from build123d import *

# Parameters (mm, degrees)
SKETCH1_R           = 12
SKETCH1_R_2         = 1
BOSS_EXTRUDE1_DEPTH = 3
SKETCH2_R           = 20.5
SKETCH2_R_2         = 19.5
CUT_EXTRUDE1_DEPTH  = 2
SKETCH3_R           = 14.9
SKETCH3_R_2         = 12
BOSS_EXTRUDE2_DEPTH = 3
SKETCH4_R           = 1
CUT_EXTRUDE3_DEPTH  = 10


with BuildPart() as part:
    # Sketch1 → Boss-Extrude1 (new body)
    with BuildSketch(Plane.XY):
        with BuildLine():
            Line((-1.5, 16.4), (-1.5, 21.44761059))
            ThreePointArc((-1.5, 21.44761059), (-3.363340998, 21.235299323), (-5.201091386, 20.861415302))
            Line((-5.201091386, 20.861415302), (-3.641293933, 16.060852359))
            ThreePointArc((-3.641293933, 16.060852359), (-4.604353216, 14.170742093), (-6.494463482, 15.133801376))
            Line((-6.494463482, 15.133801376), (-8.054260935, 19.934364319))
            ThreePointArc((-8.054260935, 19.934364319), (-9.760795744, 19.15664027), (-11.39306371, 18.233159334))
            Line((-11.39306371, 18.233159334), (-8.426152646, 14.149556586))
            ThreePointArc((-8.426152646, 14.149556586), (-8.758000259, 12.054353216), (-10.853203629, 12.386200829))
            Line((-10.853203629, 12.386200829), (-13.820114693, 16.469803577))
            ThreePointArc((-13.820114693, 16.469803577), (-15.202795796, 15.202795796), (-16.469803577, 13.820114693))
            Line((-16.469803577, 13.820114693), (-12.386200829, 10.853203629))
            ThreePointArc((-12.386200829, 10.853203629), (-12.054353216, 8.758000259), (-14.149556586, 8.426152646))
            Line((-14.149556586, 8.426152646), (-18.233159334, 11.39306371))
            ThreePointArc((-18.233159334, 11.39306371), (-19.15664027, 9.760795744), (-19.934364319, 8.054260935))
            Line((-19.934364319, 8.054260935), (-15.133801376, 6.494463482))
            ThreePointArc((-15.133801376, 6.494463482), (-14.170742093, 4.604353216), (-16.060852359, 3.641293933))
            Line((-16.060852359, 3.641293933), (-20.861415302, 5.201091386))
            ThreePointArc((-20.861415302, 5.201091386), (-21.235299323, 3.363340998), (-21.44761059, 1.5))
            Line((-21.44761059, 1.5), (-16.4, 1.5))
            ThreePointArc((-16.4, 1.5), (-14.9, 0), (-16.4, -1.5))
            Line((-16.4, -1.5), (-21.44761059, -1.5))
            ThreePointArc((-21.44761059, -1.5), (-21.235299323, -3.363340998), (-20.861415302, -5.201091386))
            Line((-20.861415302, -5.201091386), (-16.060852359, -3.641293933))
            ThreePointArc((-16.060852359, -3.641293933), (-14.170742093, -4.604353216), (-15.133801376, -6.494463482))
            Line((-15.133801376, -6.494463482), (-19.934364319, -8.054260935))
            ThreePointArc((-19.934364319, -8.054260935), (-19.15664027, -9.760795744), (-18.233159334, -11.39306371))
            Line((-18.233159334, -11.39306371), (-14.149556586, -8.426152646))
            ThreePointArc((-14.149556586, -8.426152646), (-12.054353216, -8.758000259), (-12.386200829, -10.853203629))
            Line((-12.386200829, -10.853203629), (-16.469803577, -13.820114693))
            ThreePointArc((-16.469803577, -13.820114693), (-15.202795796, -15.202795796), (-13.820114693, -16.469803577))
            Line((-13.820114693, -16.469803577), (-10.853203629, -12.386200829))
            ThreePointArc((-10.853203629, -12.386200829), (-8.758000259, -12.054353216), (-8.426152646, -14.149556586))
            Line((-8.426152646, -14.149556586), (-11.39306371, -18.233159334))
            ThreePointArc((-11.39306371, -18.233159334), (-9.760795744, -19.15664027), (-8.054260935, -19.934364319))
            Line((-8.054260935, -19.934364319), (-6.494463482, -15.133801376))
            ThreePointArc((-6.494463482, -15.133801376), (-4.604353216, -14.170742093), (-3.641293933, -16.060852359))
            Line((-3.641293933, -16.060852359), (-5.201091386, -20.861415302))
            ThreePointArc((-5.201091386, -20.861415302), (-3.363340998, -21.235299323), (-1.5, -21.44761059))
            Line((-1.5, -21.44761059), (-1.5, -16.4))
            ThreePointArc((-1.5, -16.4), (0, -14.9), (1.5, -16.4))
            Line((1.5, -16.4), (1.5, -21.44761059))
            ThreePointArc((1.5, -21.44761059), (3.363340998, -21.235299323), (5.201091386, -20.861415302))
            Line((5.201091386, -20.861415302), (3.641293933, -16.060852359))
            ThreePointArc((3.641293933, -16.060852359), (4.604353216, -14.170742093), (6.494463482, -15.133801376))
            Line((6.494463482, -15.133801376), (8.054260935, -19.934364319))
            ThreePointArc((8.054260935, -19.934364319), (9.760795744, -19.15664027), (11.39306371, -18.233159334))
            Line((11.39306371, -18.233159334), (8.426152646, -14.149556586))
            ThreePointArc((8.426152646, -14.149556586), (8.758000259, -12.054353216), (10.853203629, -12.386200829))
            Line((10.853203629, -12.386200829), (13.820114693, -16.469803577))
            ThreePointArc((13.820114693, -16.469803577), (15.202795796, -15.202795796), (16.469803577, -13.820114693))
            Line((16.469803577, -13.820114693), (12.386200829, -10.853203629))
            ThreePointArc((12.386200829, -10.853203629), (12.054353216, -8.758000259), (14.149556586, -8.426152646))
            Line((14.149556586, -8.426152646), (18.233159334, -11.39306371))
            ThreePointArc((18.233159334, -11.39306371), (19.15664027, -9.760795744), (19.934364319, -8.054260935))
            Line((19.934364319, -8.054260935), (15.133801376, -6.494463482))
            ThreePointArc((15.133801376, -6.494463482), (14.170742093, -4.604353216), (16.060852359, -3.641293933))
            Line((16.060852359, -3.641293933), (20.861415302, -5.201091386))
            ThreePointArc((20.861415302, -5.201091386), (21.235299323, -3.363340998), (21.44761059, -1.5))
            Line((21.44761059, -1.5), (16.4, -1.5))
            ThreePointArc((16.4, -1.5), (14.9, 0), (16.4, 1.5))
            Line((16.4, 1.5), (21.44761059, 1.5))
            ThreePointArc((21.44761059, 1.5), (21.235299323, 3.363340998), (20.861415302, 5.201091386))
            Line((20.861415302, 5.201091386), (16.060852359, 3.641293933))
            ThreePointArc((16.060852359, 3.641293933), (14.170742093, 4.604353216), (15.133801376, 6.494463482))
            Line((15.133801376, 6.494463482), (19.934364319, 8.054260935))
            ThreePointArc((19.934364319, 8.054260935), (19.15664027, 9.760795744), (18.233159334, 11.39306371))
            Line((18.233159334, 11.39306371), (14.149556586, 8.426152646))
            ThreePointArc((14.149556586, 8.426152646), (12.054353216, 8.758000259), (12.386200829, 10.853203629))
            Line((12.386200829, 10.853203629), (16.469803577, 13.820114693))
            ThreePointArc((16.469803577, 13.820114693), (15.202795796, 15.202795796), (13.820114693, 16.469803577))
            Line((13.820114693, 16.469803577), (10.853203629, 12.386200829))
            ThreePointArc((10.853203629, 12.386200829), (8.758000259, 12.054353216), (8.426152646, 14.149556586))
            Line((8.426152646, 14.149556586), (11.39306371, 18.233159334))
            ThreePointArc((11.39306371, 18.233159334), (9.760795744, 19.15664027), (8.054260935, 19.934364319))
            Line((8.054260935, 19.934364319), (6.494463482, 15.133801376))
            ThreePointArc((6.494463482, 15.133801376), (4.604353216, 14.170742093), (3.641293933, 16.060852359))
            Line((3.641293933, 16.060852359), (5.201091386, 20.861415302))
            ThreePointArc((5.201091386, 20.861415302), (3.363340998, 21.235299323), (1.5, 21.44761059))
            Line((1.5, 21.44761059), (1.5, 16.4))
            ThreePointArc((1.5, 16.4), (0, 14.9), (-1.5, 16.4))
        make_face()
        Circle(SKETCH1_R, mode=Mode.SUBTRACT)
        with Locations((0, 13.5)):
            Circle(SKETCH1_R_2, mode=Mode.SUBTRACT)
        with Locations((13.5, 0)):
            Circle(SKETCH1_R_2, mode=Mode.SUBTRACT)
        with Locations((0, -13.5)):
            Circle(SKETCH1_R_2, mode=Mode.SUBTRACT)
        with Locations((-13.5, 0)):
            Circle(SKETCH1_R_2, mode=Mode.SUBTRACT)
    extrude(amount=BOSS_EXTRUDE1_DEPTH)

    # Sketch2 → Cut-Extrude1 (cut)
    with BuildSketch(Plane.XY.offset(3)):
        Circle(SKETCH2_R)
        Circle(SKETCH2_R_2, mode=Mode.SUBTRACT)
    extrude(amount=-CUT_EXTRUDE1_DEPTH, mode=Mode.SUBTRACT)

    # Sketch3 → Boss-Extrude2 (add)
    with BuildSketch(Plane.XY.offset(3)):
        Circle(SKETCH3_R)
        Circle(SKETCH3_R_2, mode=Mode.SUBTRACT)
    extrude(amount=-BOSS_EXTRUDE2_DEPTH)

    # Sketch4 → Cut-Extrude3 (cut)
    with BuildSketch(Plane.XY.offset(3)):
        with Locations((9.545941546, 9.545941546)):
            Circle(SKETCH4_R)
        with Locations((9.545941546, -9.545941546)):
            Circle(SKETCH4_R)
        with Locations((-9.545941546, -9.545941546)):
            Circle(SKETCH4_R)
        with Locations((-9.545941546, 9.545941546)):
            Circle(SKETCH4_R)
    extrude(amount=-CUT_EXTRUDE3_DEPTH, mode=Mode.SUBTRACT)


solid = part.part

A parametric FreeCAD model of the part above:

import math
import FreeCAD as App
import Part
import Sketcher

V = App.Vector
Q = App.Units.Quantity

doc = App.newDocument("Part")
params = doc.addObject("Spreadsheet::Sheet", "Params")
for row, (alias, value) in enumerate([
    ("sketch1_diameter", "2 mm"),
    ("sketch1_diameter2", "24 mm"),
    ("sketch1_radius", "21.5 mm"),
    ("sketch1_radius2", "1.5 mm"),
    ("pad1_length", "3 mm"),
    ("sketch2_diameter", "41 mm"),
    ("sketch2_diameter2", "39 mm"),
    ("pocket1_length", "2 mm"),
    ("sketch3_diameter", "24 mm"),
    ("sketch3_diameter2", "29.8 mm"),
    ("pad2_length", "3 mm"),
    ("sketch4_diameter", "2 mm"),
    ("pocket2_length", "10 mm"),
], start=1):
    params.set(f"A{row}", alias)
    params.set(f"B{row}", "=" + value)
    params.setAlias(f"B{row}", alias)

body = doc.addObject("PartDesign::Body", "Body")

sketch1 = body.newObject("Sketcher::SketchObject", "Sketch")
sketch1.AttachmentSupport = (doc.getObject("XY_Plane"), [""])
sketch1.MapMode = "FlatFace"
sketch1.addGeometry(Part.LineSegment(V(-1.5, 16.4, 0), V(-1.5, 21.4, 0)), False)
sketch1.addGeometry(Part.ArcOfCircle(Part.Circle(V(0, 0, 0), V(0, 0, 1), 21.5), math.radians(94), math.radians(104)), False)
sketch1.addGeometry(Part.LineSegment(V(-5.2, 20.9, 0), V(-3.6, 16.1, 0)), False)
sketch1.addGeometry(Part.ArcOfCircle(Part.Circle(V(-5.1, 15.6, 0), V(0, 0, 1), 1.5), math.radians(-162), math.radians(18)), False)
sketch1.addGeometry(Part.LineSegment(V(-6.5, 15.1, 0), V(-8.1, 19.9, 0)), False)
sketch1.addGeometry(Part.ArcOfCircle(Part.Circle(V(0, 0, 0), V(0, 0, 1), 21.5), math.radians(112), math.radians(122)), False)
sketch1.addGeometry(Part.LineSegment(V(-11.4, 18.2, 0), V(-8.4, 14.1, 0)), False)
sketch1.addGeometry(Part.ArcOfCircle(Part.Circle(V(-9.6, 13.3, 0), V(0, 0, 1), 1.5), math.radians(-144), math.radians(36)), False)
sketch1.addGeometry(Part.LineSegment(V(-10.9, 12.4, 0), V(-13.8, 16.5, 0)), False)
sketch1.addGeometry(Part.ArcOfCircle(Part.Circle(V(0, 0, 0), V(0, 0, 1), 21.5), math.radians(130), math.radians(140)), False)
sketch1.addGeometry(Part.LineSegment(V(-16.5, 13.8, 0), V(-12.4, 10.9, 0)), False)
sketch1.addGeometry(Part.ArcOfCircle(Part.Circle(V(-13.3, 9.6, 0), V(0, 0, 1), 1.5), math.radians(-126), math.radians(54)), False)
sketch1.addGeometry(Part.LineSegment(V(-14.1, 8.4, 0), V(-18.2, 11.4, 0)), False)
sketch1.addGeometry(Part.ArcOfCircle(Part.Circle(V(0, 0, 0), V(0, 0, 1), 21.5), math.radians(148), math.radians(158)), False)
sketch1.addGeometry(Part.LineSegment(V(-19.9, 8.1, 0), V(-15.1, 6.5, 0)), False)
sketch1.addGeometry(Part.ArcOfCircle(Part.Circle(V(-15.6, 5.1, 0), V(0, 0, 1), 1.5), math.radians(-108), math.radians(72)), False)
sketch1.addGeometry(Part.LineSegment(V(-16.1, 3.6, 0), V(-20.9, 5.2, 0)), False)
sketch1.addGeometry(Part.ArcOfCircle(Part.Circle(V(0, 0, 0), V(0, 0, 1), 21.5), math.radians(166), math.radians(176)), False)
sketch1.addGeometry(Part.LineSegment(V(-21.4, 1.5, 0), V(-16.4, 1.5, 0)), False)
sketch1.addGeometry(Part.ArcOfCircle(Part.Circle(V(-16.4, 0, 0), V(0, 0, 1), 1.5), math.radians(-90), math.radians(90)), False)
sketch1.addGeometry(Part.LineSegment(V(-16.4, -1.5, 0), V(-21.4, -1.5, 0)), False)
sketch1.addGeometry(Part.ArcOfCircle(Part.Circle(V(0, 0, 0), V(0, 0, 1), 21.5), math.radians(-176), math.radians(-166)), False)
sketch1.addGeometry(Part.LineSegment(V(-20.9, -5.2, 0), V(-16.1, -3.6, 0)), False)
sketch1.addGeometry(Part.ArcOfCircle(Part.Circle(V(-15.6, -5.1, 0), V(0, 0, 1), 1.5), math.radians(-72), math.radians(108)), False)
sketch1.addGeometry(Part.LineSegment(V(-15.1, -6.5, 0), V(-19.9, -8.1, 0)), False)
sketch1.addGeometry(Part.ArcOfCircle(Part.Circle(V(0, 0, 0), V(0, 0, 1), 21.5), math.radians(-158), math.radians(-148)), False)
sketch1.addGeometry(Part.LineSegment(V(-18.2, -11.4, 0), V(-14.1, -8.4, 0)), False)
sketch1.addGeometry(Part.ArcOfCircle(Part.Circle(V(-13.3, -9.6, 0), V(0, 0, 1), 1.5), math.radians(-54), math.radians(126)), False)
sketch1.addGeometry(Part.LineSegment(V(-12.4, -10.9, 0), V(-16.5, -13.8, 0)), False)
sketch1.addGeometry(Part.ArcOfCircle(Part.Circle(V(0, 0, 0), V(0, 0, 1), 21.5), math.radians(-140), math.radians(-130)), False)
sketch1.addGeometry(Part.LineSegment(V(-13.8, -16.5, 0), V(-10.9, -12.4, 0)), False)
sketch1.addGeometry(Part.ArcOfCircle(Part.Circle(V(-9.6, -13.3, 0), V(0, 0, 1), 1.5), math.radians(-36), math.radians(144)), False)
sketch1.addGeometry(Part.LineSegment(V(-8.4, -14.1, 0), V(-11.4, -18.2, 0)), False)
sketch1.addGeometry(Part.ArcOfCircle(Part.Circle(V(0, 0, 0), V(0, 0, 1), 21.5), math.radians(-122), math.radians(-112)), False)
sketch1.addGeometry(Part.LineSegment(V(-8.1, -19.9, 0), V(-6.5, -15.1, 0)), False)
sketch1.addGeometry(Part.ArcOfCircle(Part.Circle(V(-5.1, -15.6, 0), V(0, 0, 1), 1.5), math.radians(-18), math.radians(162)), False)
sketch1.addGeometry(Part.LineSegment(V(-3.6, -16.1, 0), V(-5.2, -20.9, 0)), False)
sketch1.addGeometry(Part.ArcOfCircle(Part.Circle(V(0, 0, 0), V(0, 0, 1), 21.5), math.radians(-104), math.radians(-94)), False)
sketch1.addGeometry(Part.LineSegment(V(-1.5, -21.4, 0), V(-1.5, -16.4, 0)), False)
sketch1.addGeometry(Part.ArcOfCircle(Part.Circle(V(0, -16.4, 0), V(0, 0, 1), 1.5), math.radians(0), math.radians(180)), False)
sketch1.addGeometry(Part.LineSegment(V(1.5, -16.4, 0), V(1.5, -21.4, 0)), False)
sketch1.addGeometry(Part.ArcOfCircle(Part.Circle(V(0, 0, 0), V(0, 0, 1), 21.5), math.radians(-86), math.radians(-76)), False)
sketch1.addGeometry(Part.LineSegment(V(5.2, -20.9, 0), V(3.6, -16.1, 0)), False)
sketch1.addGeometry(Part.ArcOfCircle(Part.Circle(V(5.1, -15.6, 0), V(0, 0, 1), 1.5), math.radians(18), math.radians(198)), False)
sketch1.addGeometry(Part.LineSegment(V(6.5, -15.1, 0), V(8.1, -19.9, 0)), False)
sketch1.addGeometry(Part.ArcOfCircle(Part.Circle(V(0, 0, 0), V(0, 0, 1), 21.5), math.radians(-68), math.radians(-58)), False)
sketch1.addGeometry(Part.LineSegment(V(11.4, -18.2, 0), V(8.4, -14.1, 0)), False)
sketch1.addGeometry(Part.ArcOfCircle(Part.Circle(V(9.6, -13.3, 0), V(0, 0, 1), 1.5), math.radians(36), math.radians(216)), False)
sketch1.addGeometry(Part.LineSegment(V(10.9, -12.4, 0), V(13.8, -16.5, 0)), False)
sketch1.addGeometry(Part.ArcOfCircle(Part.Circle(V(0, 0, 0), V(0, 0, 1), 21.5), math.radians(-50), math.radians(-40)), False)
sketch1.addGeometry(Part.LineSegment(V(16.5, -13.8, 0), V(12.4, -10.9, 0)), False)
sketch1.addGeometry(Part.ArcOfCircle(Part.Circle(V(13.3, -9.6, 0), V(0, 0, 1), 1.5), math.radians(54), math.radians(234)), False)
sketch1.addGeometry(Part.LineSegment(V(14.1, -8.4, 0), V(18.2, -11.4, 0)), False)
sketch1.addGeometry(Part.ArcOfCircle(Part.Circle(V(0, 0, 0), V(0, 0, 1), 21.5), math.radians(-32), math.radians(-22)), False)
sketch1.addGeometry(Part.LineSegment(V(19.9, -8.1, 0), V(15.1, -6.5, 0)), False)
sketch1.addGeometry(Part.ArcOfCircle(Part.Circle(V(15.6, -5.1, 0), V(0, 0, 1), 1.5), math.radians(72), math.radians(252)), False)
sketch1.addGeometry(Part.LineSegment(V(16.1, -3.6, 0), V(20.9, -5.2, 0)), False)
sketch1.addGeometry(Part.ArcOfCircle(Part.Circle(V(0, 0, 0), V(0, 0, 1), 21.5), math.radians(-14), math.radians(-4)), False)
sketch1.addGeometry(Part.LineSegment(V(21.4, -1.5, 0), V(16.4, -1.5, 0)), False)
sketch1.addGeometry(Part.ArcOfCircle(Part.Circle(V(16.4, 0, 0), V(0, 0, 1), 1.5), math.radians(90), math.radians(270)), False)
sketch1.addGeometry(Part.LineSegment(V(16.4, 1.5, 0), V(21.4, 1.5, 0)), False)
sketch1.addGeometry(Part.ArcOfCircle(Part.Circle(V(0, 0, 0), V(0, 0, 1), 21.5), math.radians(4), math.radians(14)), False)
sketch1.addGeometry(Part.LineSegment(V(20.9, 5.2, 0), V(16.1, 3.6, 0)), False)
sketch1.addGeometry(Part.ArcOfCircle(Part.Circle(V(15.6, 5.1, 0), V(0, 0, 1), 1.5), math.radians(108), math.radians(288)), False)
sketch1.addGeometry(Part.LineSegment(V(15.1, 6.5, 0), V(19.9, 8.1, 0)), False)
sketch1.addGeometry(Part.ArcOfCircle(Part.Circle(V(0, 0, 0), V(0, 0, 1), 21.5), math.radians(22), math.radians(32)), False)
sketch1.addGeometry(Part.LineSegment(V(18.2, 11.4, 0), V(14.1, 8.4, 0)), False)
sketch1.addGeometry(Part.ArcOfCircle(Part.Circle(V(13.3, 9.6, 0), V(0, 0, 1), 1.5), math.radians(126), math.radians(306)), False)
sketch1.addGeometry(Part.LineSegment(V(12.4, 10.9, 0), V(16.5, 13.8, 0)), False)
sketch1.addGeometry(Part.ArcOfCircle(Part.Circle(V(0, 0, 0), V(0, 0, 1), 21.5), math.radians(40), math.radians(50)), False)
sketch1.addGeometry(Part.LineSegment(V(13.8, 16.5, 0), V(10.9, 12.4, 0)), False)
sketch1.addGeometry(Part.ArcOfCircle(Part.Circle(V(9.6, 13.3, 0), V(0, 0, 1), 1.5), math.radians(144), math.radians(324)), False)
sketch1.addGeometry(Part.LineSegment(V(8.4, 14.1, 0), V(11.4, 18.2, 0)), False)
sketch1.addGeometry(Part.ArcOfCircle(Part.Circle(V(0, 0, 0), V(0, 0, 1), 21.5), math.radians(58), math.radians(68)), False)
sketch1.addGeometry(Part.LineSegment(V(8.1, 19.9, 0), V(6.5, 15.1, 0)), False)
sketch1.addGeometry(Part.ArcOfCircle(Part.Circle(V(5.1, 15.6, 0), V(0, 0, 1), 1.5), math.radians(162), math.radians(342)), False)
sketch1.addGeometry(Part.LineSegment(V(3.6, 16.1, 0), V(5.2, 20.9, 0)), False)
sketch1.addGeometry(Part.ArcOfCircle(Part.Circle(V(0, 0, 0), V(0, 0, 1), 21.5), math.radians(76), math.radians(86)), False)
sketch1.addGeometry(Part.LineSegment(V(1.5, 21.4, 0), V(1.5, 16.4, 0)), False)
sketch1.addGeometry(Part.ArcOfCircle(Part.Circle(V(0, 16.4, 0), V(0, 0, 1), 1.5), math.radians(180), math.radians(360)), False)
sketch1.addGeometry(Part.Circle(V(0, -13.5, 0), V(0, 0, 1), 1), False)
sketch1.addGeometry(Part.Circle(V(-13.5, 0, 0), V(0, 0, 1), 1), False)
sketch1.addGeometry(Part.Circle(V(0, 0, 0), V(0, 0, 1), 12), False)
sketch1.addGeometry(Part.Circle(V(13.5, 0, 0), V(0, 0, 1), 1), False)
sketch1.addGeometry(Part.Circle(V(0, 13.5, 0), V(0, 0, 1), 1), False)
sketch1.addConstraint(Sketcher.Constraint("Coincident", 0, 2, 1, 1))
sketch1.addConstraint(Sketcher.Constraint("Coincident", 1, 2, 2, 1))
sketch1.addConstraint(Sketcher.Constraint("Tangent", 2, 2, 3, 2))
sketch1.addConstraint(Sketcher.Constraint("Tangent", 3, 1, 4, 1))
sketch1.addConstraint(Sketcher.Constraint("Coincident", 4, 2, 5, 1))
sketch1.addConstraint(Sketcher.Constraint("Coincident", 5, 2, 6, 1))
sketch1.addConstraint(Sketcher.Constraint("Tangent", 6, 2, 7, 2))
sketch1.addConstraint(Sketcher.Constraint("Tangent", 7, 1, 8, 1))
sketch1.addConstraint(Sketcher.Constraint("Coincident", 8, 2, 9, 1))
sketch1.addConstraint(Sketcher.Constraint("Coincident", 9, 2, 10, 1))
sketch1.addConstraint(Sketcher.Constraint("Tangent", 10, 2, 11, 2))
sketch1.addConstraint(Sketcher.Constraint("Tangent", 11, 1, 12, 1))
sketch1.addConstraint(Sketcher.Constraint("Coincident", 12, 2, 13, 1))
sketch1.addConstraint(Sketcher.Constraint("Coincident", 13, 2, 14, 1))
sketch1.addConstraint(Sketcher.Constraint("Tangent", 14, 2, 15, 2))
sketch1.addConstraint(Sketcher.Constraint("Tangent", 15, 1, 16, 1))
sketch1.addConstraint(Sketcher.Constraint("Coincident", 16, 2, 17, 1))
sketch1.addConstraint(Sketcher.Constraint("Coincident", 17, 2, 18, 1))
sketch1.addConstraint(Sketcher.Constraint("Tangent", 18, 2, 19, 2))
sketch1.addConstraint(Sketcher.Constraint("Tangent", 19, 1, 20, 1))
sketch1.addConstraint(Sketcher.Constraint("Coincident", 20, 2, 21, 1))
sketch1.addConstraint(Sketcher.Constraint("Coincident", 21, 2, 22, 1))
sketch1.addConstraint(Sketcher.Constraint("Tangent", 22, 2, 23, 2))
sketch1.addConstraint(Sketcher.Constraint("Tangent", 23, 1, 24, 1))
sketch1.addConstraint(Sketcher.Constraint("Coincident", 24, 2, 25, 1))
sketch1.addConstraint(Sketcher.Constraint("Coincident", 25, 2, 26, 1))
sketch1.addConstraint(Sketcher.Constraint("Tangent", 26, 2, 27, 2))
sketch1.addConstraint(Sketcher.Constraint("Tangent", 27, 1, 28, 1))
sketch1.addConstraint(Sketcher.Constraint("Coincident", 28, 2, 29, 1))
sketch1.addConstraint(Sketcher.Constraint("Coincident", 29, 2, 30, 1))
sketch1.addConstraint(Sketcher.Constraint("Tangent", 30, 2, 31, 2))
sketch1.addConstraint(Sketcher.Constraint("Tangent", 31, 1, 32, 1))
sketch1.addConstraint(Sketcher.Constraint("Coincident", 32, 2, 33, 1))
sketch1.addConstraint(Sketcher.Constraint("Coincident", 33, 2, 34, 1))
sketch1.addConstraint(Sketcher.Constraint("Tangent", 34, 2, 35, 2))
sketch1.addConstraint(Sketcher.Constraint("Tangent", 35, 1, 36, 1))
sketch1.addConstraint(Sketcher.Constraint("Coincident", 36, 2, 37, 1))
sketch1.addConstraint(Sketcher.Constraint("Coincident", 37, 2, 38, 1))
sketch1.addConstraint(Sketcher.Constraint("Tangent", 38, 2, 39, 2))
sketch1.addConstraint(Sketcher.Constraint("Tangent", 39, 1, 40, 1))
sketch1.addConstraint(Sketcher.Constraint("Coincident", 40, 2, 41, 1))
sketch1.addConstraint(Sketcher.Constraint("Coincident", 41, 2, 42, 1))
sketch1.addConstraint(Sketcher.Constraint("Tangent", 42, 2, 43, 2))
sketch1.addConstraint(Sketcher.Constraint("Tangent", 43, 1, 44, 1))
sketch1.addConstraint(Sketcher.Constraint("Coincident", 44, 2, 45, 1))
sketch1.addConstraint(Sketcher.Constraint("Coincident", 45, 2, 46, 1))
sketch1.addConstraint(Sketcher.Constraint("Tangent", 46, 2, 47, 2))
sketch1.addConstraint(Sketcher.Constraint("Tangent", 47, 1, 48, 1))
sketch1.addConstraint(Sketcher.Constraint("Coincident", 48, 2, 49, 1))
sketch1.addConstraint(Sketcher.Constraint("Coincident", 49, 2, 50, 1))
sketch1.addConstraint(Sketcher.Constraint("Tangent", 50, 2, 51, 2))
sketch1.addConstraint(Sketcher.Constraint("Tangent", 51, 1, 52, 1))
sketch1.addConstraint(Sketcher.Constraint("Coincident", 52, 2, 53, 1))
sketch1.addConstraint(Sketcher.Constraint("Coincident", 53, 2, 54, 1))
sketch1.addConstraint(Sketcher.Constraint("Tangent", 54, 2, 55, 2))
sketch1.addConstraint(Sketcher.Constraint("Tangent", 55, 1, 56, 1))
sketch1.addConstraint(Sketcher.Constraint("Coincident", 56, 2, 57, 1))
sketch1.addConstraint(Sketcher.Constraint("Coincident", 57, 2, 58, 1))
sketch1.addConstraint(Sketcher.Constraint("Tangent", 58, 2, 59, 2))
sketch1.addConstraint(Sketcher.Constraint("Tangent", 59, 1, 60, 1))
sketch1.addConstraint(Sketcher.Constraint("Coincident", 60, 2, 61, 1))
sketch1.addConstraint(Sketcher.Constraint("Coincident", 61, 2, 62, 1))
sketch1.addConstraint(Sketcher.Constraint("Tangent", 62, 2, 63, 2))
sketch1.addConstraint(Sketcher.Constraint("Tangent", 63, 1, 64, 1))
sketch1.addConstraint(Sketcher.Constraint("Coincident", 64, 2, 65, 1))
sketch1.addConstraint(Sketcher.Constraint("Coincident", 65, 2, 66, 1))
sketch1.addConstraint(Sketcher.Constraint("Tangent", 66, 2, 67, 2))
sketch1.addConstraint(Sketcher.Constraint("Tangent", 67, 1, 68, 1))
sketch1.addConstraint(Sketcher.Constraint("Coincident", 68, 2, 69, 1))
sketch1.addConstraint(Sketcher.Constraint("Coincident", 69, 2, 70, 1))
sketch1.addConstraint(Sketcher.Constraint("Tangent", 70, 2, 71, 2))
sketch1.addConstraint(Sketcher.Constraint("Tangent", 71, 1, 72, 1))
sketch1.addConstraint(Sketcher.Constraint("Coincident", 72, 2, 73, 1))
sketch1.addConstraint(Sketcher.Constraint("Coincident", 73, 2, 74, 1))
sketch1.addConstraint(Sketcher.Constraint("Tangent", 74, 2, 75, 2))
sketch1.addConstraint(Sketcher.Constraint("Tangent", 75, 1, 76, 1))
sketch1.addConstraint(Sketcher.Constraint("Coincident", 76, 2, 77, 1))
sketch1.addConstraint(Sketcher.Constraint("Coincident", 77, 2, 78, 1))
sketch1.addConstraint(Sketcher.Constraint("Tangent", 78, 2, 79, 2))
sketch1.addConstraint(Sketcher.Constraint("Tangent", 79, 1, 0, 1))
sketch1.addConstraint(Sketcher.Constraint("Vertical", 0))
sketch1.addConstraint(Sketcher.Constraint("Horizontal", 18))
sketch1.addConstraint(Sketcher.Constraint("Horizontal", 20))
sketch1.addConstraint(Sketcher.Constraint("Vertical", 38))
sketch1.addConstraint(Sketcher.Constraint("Vertical", 40))
sketch1.addConstraint(Sketcher.Constraint("Horizontal", 58))
sketch1.addConstraint(Sketcher.Constraint("Horizontal", 60))
sketch1.addConstraint(Sketcher.Constraint("Vertical", 78))
sketch1.addConstraint(Sketcher.Constraint("Coincident", 1, 3, -1, 1))
sketch1.addConstraint(Sketcher.Constraint("Coincident", 5, 3, -1, 1))
sketch1.addConstraint(Sketcher.Constraint("Coincident", 9, 3, -1, 1))
sketch1.addConstraint(Sketcher.Constraint("Coincident", 13, 3, -1, 1))
sketch1.addConstraint(Sketcher.Constraint("Coincident", 17, 3, -1, 1))
sketch1.addConstraint(Sketcher.Constraint("Coincident", 21, 3, -1, 1))
sketch1.addConstraint(Sketcher.Constraint("Coincident", 25, 3, -1, 1))
sketch1.addConstraint(Sketcher.Constraint("Coincident", 29, 3, -1, 1))
sketch1.addConstraint(Sketcher.Constraint("Coincident", 33, 3, -1, 1))
sketch1.addConstraint(Sketcher.Constraint("Coincident", 37, 3, -1, 1))
sketch1.addConstraint(Sketcher.Constraint("Coincident", 41, 3, -1, 1))
sketch1.addConstraint(Sketcher.Constraint("Coincident", 45, 3, -1, 1))
sketch1.addConstraint(Sketcher.Constraint("Coincident", 49, 3, -1, 1))
sketch1.addConstraint(Sketcher.Constraint("Coincident", 53, 3, -1, 1))
sketch1.addConstraint(Sketcher.Constraint("Coincident", 57, 3, -1, 1))
sketch1.addConstraint(Sketcher.Constraint("Coincident", 61, 3, -1, 1))
sketch1.addConstraint(Sketcher.Constraint("Coincident", 65, 3, -1, 1))
sketch1.addConstraint(Sketcher.Constraint("Coincident", 69, 3, -1, 1))
sketch1.addConstraint(Sketcher.Constraint("Coincident", 73, 3, -1, 1))
sketch1.addConstraint(Sketcher.Constraint("Coincident", 77, 3, -1, 1))
sketch1.addConstraint(Sketcher.Constraint("Coincident", 82, 3, -1, 1))
sketch1.addConstraint(Sketcher.Constraint("Equal", 1, 5))
sketch1.addConstraint(Sketcher.Constraint("Equal", 3, 7))
sketch1.addConstraint(Sketcher.Constraint("Equal", 5, 9))
sketch1.addConstraint(Sketcher.Constraint("Equal", 7, 11))
sketch1.addConstraint(Sketcher.Constraint("Equal", 9, 13))
sketch1.addConstraint(Sketcher.Constraint("Equal", 11, 15))
sketch1.addConstraint(Sketcher.Constraint("Equal", 13, 17))
sketch1.addConstraint(Sketcher.Constraint("Equal", 15, 19))
sketch1.addConstraint(Sketcher.Constraint("Equal", 17, 21))
sketch1.addConstraint(Sketcher.Constraint("Equal", 19, 23))
sketch1.addConstraint(Sketcher.Constraint("Equal", 21, 25))
sketch1.addConstraint(Sketcher.Constraint("Equal", 23, 27))
sketch1.addConstraint(Sketcher.Constraint("Equal", 25, 29))
sketch1.addConstraint(Sketcher.Constraint("Equal", 27, 31))
sketch1.addConstraint(Sketcher.Constraint("Equal", 29, 33))
sketch1.addConstraint(Sketcher.Constraint("Equal", 31, 35))
sketch1.addConstraint(Sketcher.Constraint("Equal", 33, 37))
sketch1.addConstraint(Sketcher.Constraint("Equal", 35, 39))
sketch1.addConstraint(Sketcher.Constraint("Equal", 37, 41))
sketch1.addConstraint(Sketcher.Constraint("Equal", 39, 43))
sketch1.addConstraint(Sketcher.Constraint("Equal", 41, 45))
sketch1.addConstraint(Sketcher.Constraint("Equal", 43, 47))
sketch1.addConstraint(Sketcher.Constraint("Equal", 45, 49))
sketch1.addConstraint(Sketcher.Constraint("Equal", 47, 51))
sketch1.addConstraint(Sketcher.Constraint("Equal", 49, 53))
sketch1.addConstraint(Sketcher.Constraint("Equal", 51, 55))
sketch1.addConstraint(Sketcher.Constraint("Equal", 53, 57))
sketch1.addConstraint(Sketcher.Constraint("Equal", 55, 59))
sketch1.addConstraint(Sketcher.Constraint("Equal", 57, 61))
sketch1.addConstraint(Sketcher.Constraint("Equal", 59, 63))
sketch1.addConstraint(Sketcher.Constraint("Equal", 61, 65))
sketch1.addConstraint(Sketcher.Constraint("Equal", 63, 67))
sketch1.addConstraint(Sketcher.Constraint("Equal", 65, 69))
sketch1.addConstraint(Sketcher.Constraint("Equal", 67, 71))
sketch1.addConstraint(Sketcher.Constraint("Equal", 69, 73))
sketch1.addConstraint(Sketcher.Constraint("Equal", 71, 75))
sketch1.addConstraint(Sketcher.Constraint("Equal", 73, 77))
sketch1.addConstraint(Sketcher.Constraint("Equal", 75, 79))
sketch1.addConstraint(Sketcher.Constraint("Equal", 80, 81))
sketch1.addConstraint(Sketcher.Constraint("Equal", 81, 83))
sketch1.addConstraint(Sketcher.Constraint("Equal", 83, 84))
sketch1.addConstraint(Sketcher.Constraint("Symmetric", 3, 3, 43, 3, -1, 1))
sketch1.addConstraint(Sketcher.Constraint("Symmetric", 7, 3, 47, 3, -1, 1))
sketch1.addConstraint(Sketcher.Constraint("Symmetric", 11, 3, 51, 3, -1, 1))
sketch1.addConstraint(Sketcher.Constraint("Symmetric", 15, 3, 55, 3, -1, 1))
sketch1.addConstraint(Sketcher.Constraint("Symmetric", 19, 3, 59, 3, -1, 1))
sketch1.addConstraint(Sketcher.Constraint("Symmetric", 23, 3, 63, 3, -1, 1))
sketch1.addConstraint(Sketcher.Constraint("Symmetric", 27, 3, 67, 3, -1, 1))
sketch1.addConstraint(Sketcher.Constraint("Symmetric", 31, 3, 71, 3, -1, 1))
sketch1.addConstraint(Sketcher.Constraint("Symmetric", 35, 3, 75, 3, -1, 1))
sketch1.addConstraint(Sketcher.Constraint("Symmetric", 39, 3, 79, 3, -1, 1))
sketch1.addConstraint(Sketcher.Constraint("Symmetric", 81, 3, 83, 3, -1, 1))
sketch1.addConstraint(Sketcher.Constraint("Symmetric", 80, 3, 84, 3, -1, 1))
sketch1.addConstraint(Sketcher.Constraint("Symmetric", 35, 3, 43, 3, -2))
sketch1.addConstraint(Sketcher.Constraint("Symmetric", 31, 3, 47, 3, -2))
sketch1.addConstraint(Sketcher.Constraint("Symmetric", 27, 3, 51, 3, -2))
sketch1.addConstraint(Sketcher.Constraint("Symmetric", 23, 3, 55, 3, -2))
sketch1.addConstraint(Sketcher.Constraint("PointOnObject", 19, 3, -1))
sketch1.addConstraint(Sketcher.Constraint("PointOnObject", 39, 3, -2))
sketch1.addConstraint(Sketcher.Constraint("PointOnObject", 80, 3, -2))
sketch1.addConstraint(Sketcher.Constraint("PointOnObject", 81, 3, -1))
sketch1.addConstraint(Sketcher.Constraint("Parallel", 2, 4))
sketch1.addConstraint(Sketcher.Constraint("Parallel", 6, 8))
sketch1.addConstraint(Sketcher.Constraint("Parallel", 10, 12))
sketch1.addConstraint(Sketcher.Constraint("Parallel", 14, 16))
sketch1.addConstraint(Sketcher.Constraint("Perpendicular", 4, 22))
sketch1.addConstraint(Sketcher.Constraint("Parallel", 22, 24))
sketch1.addConstraint(Sketcher.Constraint("Perpendicular", 8, 26))
sketch1.addConstraint(Sketcher.Constraint("Parallel", 26, 28))
sketch1.addConstraint(Sketcher.Constraint("Perpendicular", 12, 30))
sketch1.addConstraint(Sketcher.Constraint("Parallel", 30, 32))
sketch1.addConstraint(Sketcher.Constraint("Perpendicular", 16, 34))
sketch1.addConstraint(Sketcher.Constraint("Parallel", 34, 36))
sketch1.addConstraint(Sketcher.Constraint("Perpendicular", 24, 42))
sketch1.addConstraint(Sketcher.Constraint("Parallel", 42, 44))
sketch1.addConstraint(Sketcher.Constraint("Perpendicular", 28, 46))
sketch1.addConstraint(Sketcher.Constraint("Parallel", 46, 48))
sketch1.addConstraint(Sketcher.Constraint("Perpendicular", 32, 50))
sketch1.addConstraint(Sketcher.Constraint("Parallel", 50, 52))
sketch1.addConstraint(Sketcher.Constraint("Perpendicular", 36, 54))
sketch1.addConstraint(Sketcher.Constraint("Parallel", 54, 56))
sketch1.addConstraint(Sketcher.Constraint("Perpendicular", 44, 62))
sketch1.addConstraint(Sketcher.Constraint("Parallel", 62, 64))
sketch1.addConstraint(Sketcher.Constraint("Perpendicular", 48, 66))
sketch1.addConstraint(Sketcher.Constraint("Parallel", 66, 68))
sketch1.addConstraint(Sketcher.Constraint("Perpendicular", 52, 70))
sketch1.addConstraint(Sketcher.Constraint("Parallel", 70, 72))
sketch1.addConstraint(Sketcher.Constraint("Perpendicular", 56, 74))
sketch1.addConstraint(Sketcher.Constraint("Parallel", 74, 76))
sketch1.addConstraint(Sketcher.Constraint("Horizontal", 36, 2, 41, 2))
sketch1.addConstraint(Sketcher.Constraint("Horizontal", 32, 2, 45, 2))
sketch1.addConstraint(Sketcher.Constraint("Equal", 60, 0))
sketch1.addConstraint(Sketcher.Constraint("Equal", 2, 4))
sketch1.addConstraint(Sketcher.Constraint("Equal", 4, 6))
sketch1.addConstraint(Sketcher.Constraint("Equal", 6, 8))
sketch1.addConstraint(Sketcher.Constraint("Equal", 8, 10))
sketch1.addConstraint(Sketcher.Constraint("Equal", 10, 12))
sketch1.addConstraint(Sketcher.Constraint("Equal", 12, 14))
sketch1.addConstraint(Sketcher.Constraint("Equal", 14, 16))
sketch1.addConstraint(Sketcher.Constraint("Diameter", 80, Q("2 mm")))
sketch1.addConstraint(Sketcher.Constraint("Diameter", 82, Q("24 mm")))
sketch1.addConstraint(Sketcher.Constraint("Radius", 1, Q("21.5 mm")))
sketch1.addConstraint(Sketcher.Constraint("Radius", 3, Q("1.5 mm")))
sketch1.addConstraint(Sketcher.Constraint("Angle", 2, Q("-72 deg")))
sketch1.addConstraint(Sketcher.Constraint("Angle", 6, Q("-54 deg")))
sketch1.addConstraint(Sketcher.Constraint("DistanceX", 19, 3, -1, 1, Q("16.4 mm")))
sketch1.addConstraint(Sketcher.Constraint("DistanceY", 80, 3, -1, 1, Q("13.5 mm")))
sketch1.addConstraint(Sketcher.Constraint("DistanceX", 81, 3, -1, 1, Q("13.5 mm")))
sketch1.addConstraint(Sketcher.Constraint("DistanceY", -1, 1, 3, 1, Q("15.133801 mm")))
sketch1.setExpression("Constraints[208]", "Params.sketch1_diameter")
sketch1.setExpression("Constraints[209]", "Params.sketch1_diameter2")
sketch1.setExpression("Constraints[210]", "Params.sketch1_radius")
sketch1.setExpression("Constraints[211]", "Params.sketch1_radius2")
pad1 = body.newObject("PartDesign::Pad", "Pad")
pad1.Profile = sketch1
pad1.setExpression("Length", "Params.pad1_length")

sketch2 = body.newObject("Sketcher::SketchObject", "Sketch001")
sketch2.AttachmentSupport = (doc.getObject("XY_Plane"), [""])
sketch2.MapMode = "FlatFace"
sketch2.AttachmentOffset = App.Placement(V(0, 0, 3), App.Rotation())
sketch2.addGeometry(Part.Circle(V(0, 0, 0), V(0, 0, 1), 20), False)
sketch2.addGeometry(Part.Circle(V(0, 0, 0), V(0, 0, 1), 20), False)
sketch2.addConstraint(Sketcher.Constraint("Coincident", 0, 3, -1, 1))
sketch2.addConstraint(Sketcher.Constraint("Coincident", 1, 3, -1, 1))
sketch2.addConstraint(Sketcher.Constraint("Diameter", 0, Q("41 mm")))
sketch2.addConstraint(Sketcher.Constraint("Diameter", 1, Q("39 mm")))
sketch2.setExpression("Constraints[2]", "Params.sketch2_diameter")
sketch2.setExpression("Constraints[3]", "Params.sketch2_diameter2")
pocket1 = body.newObject("PartDesign::Pocket", "Pocket")
pocket1.Profile = sketch2
pocket1.setExpression("Length", "Params.pocket1_length")

sketch3 = body.newObject("Sketcher::SketchObject", "Sketch002")
sketch3.AttachmentSupport = (doc.getObject("XY_Plane"), [""])
sketch3.MapMode = "FlatFace"
sketch3.AttachmentOffset = App.Placement(V(0, 0, 3), App.Rotation())
sketch3.addGeometry(Part.Circle(V(0, 0, 0), V(0, 0, 1), 15), False)
sketch3.addGeometry(Part.Circle(V(0, 0, 0), V(0, 0, 1), 12), False)
sketch3.addConstraint(Sketcher.Constraint("Coincident", 0, 3, -1, 1))
sketch3.addConstraint(Sketcher.Constraint("Coincident", 1, 3, -1, 1))
sketch3.addConstraint(Sketcher.Constraint("Diameter", 1, Q("24 mm")))
sketch3.addConstraint(Sketcher.Constraint("Diameter", 0, Q("29.8 mm")))
sketch3.setExpression("Constraints[2]", "Params.sketch3_diameter")
sketch3.setExpression("Constraints[3]", "Params.sketch3_diameter2")
pad2 = body.newObject("PartDesign::Pad", "Pad001")
pad2.Profile = sketch3
pad2.setExpression("Length", "Params.pad2_length")
pad2.Reversed = True

sketch4 = body.newObject("Sketcher::SketchObject", "Sketch003")
sketch4.AttachmentSupport = (doc.getObject("XY_Plane"), [""])
sketch4.MapMode = "FlatFace"
sketch4.AttachmentOffset = App.Placement(V(0, 0, 3), App.Rotation())
sketch4.addGeometry(Part.Circle(V(9.5, 9.5, 0), V(0, 0, 1), 1), False)
sketch4.addGeometry(Part.Circle(V(9.5, -9.5, 0), V(0, 0, 1), 1), False)
sketch4.addGeometry(Part.Circle(V(-9.5, -9.5, 0), V(0, 0, 1), 1), False)
sketch4.addGeometry(Part.Circle(V(-9.5, 9.5, 0), V(0, 0, 1), 1), False)
sketch4.addConstraint(Sketcher.Constraint("Equal", 0, 1))
sketch4.addConstraint(Sketcher.Constraint("Equal", 1, 2))
sketch4.addConstraint(Sketcher.Constraint("Equal", 2, 3))
sketch4.addConstraint(Sketcher.Constraint("Symmetric", 0, 3, 2, 3, -1, 1))
sketch4.addConstraint(Sketcher.Constraint("Symmetric", 1, 3, 3, 3, -1, 1))
sketch4.addConstraint(Sketcher.Constraint("Symmetric", 1, 3, 2, 3, -2))
sketch4.addConstraint(Sketcher.Constraint("Diameter", 0, Q("2 mm")))
sketch4.addConstraint(Sketcher.Constraint("DistanceX", -1, 1, 0, 3, Q("9.545942 mm")))
sketch4.addConstraint(Sketcher.Constraint("DistanceY", -1, 1, 0, 3, Q("9.545942 mm")))
sketch4.setExpression("Constraints[6]", "Params.sketch4_diameter")
pocket2 = body.newObject("PartDesign::Pocket", "Pocket001")
pocket2.Profile = sketch4
pocket2.setExpression("Length", "Params.pocket2_length")

doc.recompute()
